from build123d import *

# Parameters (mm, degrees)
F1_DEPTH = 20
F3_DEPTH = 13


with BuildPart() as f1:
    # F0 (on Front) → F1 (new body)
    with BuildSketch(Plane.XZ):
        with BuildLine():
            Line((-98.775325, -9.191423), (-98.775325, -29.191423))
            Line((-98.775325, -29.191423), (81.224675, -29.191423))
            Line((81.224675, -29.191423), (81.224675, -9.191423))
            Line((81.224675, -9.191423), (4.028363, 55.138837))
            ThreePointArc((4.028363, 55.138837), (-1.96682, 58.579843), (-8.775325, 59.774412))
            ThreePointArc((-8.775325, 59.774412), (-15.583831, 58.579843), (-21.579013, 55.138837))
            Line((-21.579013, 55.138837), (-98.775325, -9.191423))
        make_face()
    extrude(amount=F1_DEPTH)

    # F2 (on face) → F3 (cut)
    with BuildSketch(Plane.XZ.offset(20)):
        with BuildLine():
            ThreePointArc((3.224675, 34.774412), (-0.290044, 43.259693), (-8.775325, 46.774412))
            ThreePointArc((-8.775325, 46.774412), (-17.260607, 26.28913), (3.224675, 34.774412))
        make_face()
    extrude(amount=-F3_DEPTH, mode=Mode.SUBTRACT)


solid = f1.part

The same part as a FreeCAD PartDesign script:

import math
import FreeCAD as App
import Part
import Sketcher

V = App.Vector

doc = App.newDocument("Part")
body = doc.addObject("PartDesign::Body", "Body")

# Sketch on XZ plane
sketch1 = body.newObject("Sketcher::SketchObject", "Sketch")
sketch1.AttachmentSupport = (doc.getObject("XZ_Plane"), [""])
sketch1.MapMode = "FlatFace"
sketch1.addGeometry([
    Part.LineSegment(V(-99, -9, 0), V(-99, -29, 0)),  # 0
    Part.LineSegment(V(-99, -29, 0), V(81, -29, 0)),  # 1
    Part.LineSegment(V(81, -29, 0), V(81, -9, 0)),  # 2
    Part.LineSegment(V(81, -9, 0), V(4, 55, 0)),  # 3
    Part.ArcOfCircle(Part.Circle(V(-9, 40, 0), V(0, 0, 1), 20), math.radians(50), math.radians(90)),  # 4
    Part.ArcOfCircle(Part.Circle(V(-9, 40, 0), V(0, 0, 1), 20), math.radians(90), math.radians(130)),  # 5
    Part.LineSegment(V(-22, 55, 0), V(-99, -9, 0)),  # 6
], False)
sketch1.addConstraint([
    Sketcher.Constraint("Coincident", 0, 2, 1, 1),
    Sketcher.Constraint("Coincident", 1, 2, 2, 1),
    Sketcher.Constraint("Coincident", 2, 2, 3, 1),
    Sketcher.Constraint("Tangent", 3, 2, 4, 1),
    Sketcher.Constraint("Tangent", 4, 2, 5, 1),
    Sketcher.Constraint("Tangent", 5, 2, 6, 1),
    Sketcher.Constraint("Coincident", 6, 2, 0, 1),
    Sketcher.Constraint("Vertical", 0),
    Sketcher.Constraint("Horizontal", 1),
    Sketcher.Constraint("Vertical", 2),
    Sketcher.Constraint("Horizontal", 3, 2, 5, 2),
    Sketcher.Constraint("Horizontal", 2, 2, 6, 2),
    Sketcher.Constraint("Vertical", 5, 3, 4, 2),
    Sketcher.Constraint("Equal", 3, 6),
    Sketcher.Constraint("Radius", 5, 20.000001),
    Sketcher.Constraint("DistanceX", 1, 1, 1, 2, 180.0),
    Sketcher.Constraint("DistanceY", 0, 2, 0, 1, 20.0),
    Sketcher.Constraint("Distance", 3, 100.487078),
    Sketcher.Constraint("DistanceY", -1, 1, 5, 3, 39.774411),
    Sketcher.Constraint("DistanceX", 4, 3, -1, 1, 8.775328),
])
pad1 = body.newObject("PartDesign::Pad", "Pad")
pad1.Profile = sketch1
pad1.Length = 20

# Sketch on XZ plane
sketch2 = body.newObject("Sketcher::SketchObject", "Sketch001")
sketch2.AttachmentSupport = (doc.getObject("XZ_Plane"), [""])
sketch2.MapMode = "FlatFace"
sketch2.AttachmentOffset = App.Placement(V(0, 0, 20), App.Rotation())
sketch2.addGeometry([
    Part.ArcOfCircle(Part.Circle(V(-9, 35, 0), V(0, 0, 1), 12), math.radians(0), math.radians(90)),
    Part.ArcOfCircle(Part.Circle(V(-9, 35, 0), V(0, 0, 1), 12), math.radians(90), math.radians(360)),
], False)
sketch2.addConstraint([
    Sketcher.Constraint("Tangent", 0, 1, 1, 2),
    Sketcher.Constraint("Coincident", 1, 1, 0, 2),
    Sketcher.Constraint("Horizontal", 1, 3, 0, 1),
    Sketcher.Constraint("Vertical", 0, 3, 1, 1),
    Sketcher.Constraint("Radius", 0, 12.000001),
    Sketcher.Constraint("DistanceY", -1, 1, 0, 3, 34.774411),
    Sketcher.Constraint("DistanceX", 0, 3, -1, 1, 8.775326),
])
pocket1 = body.newObject("PartDesign::Pocket", "Pocket")
pocket1.Profile = sketch2
pocket1.Length = 13

doc.recompute()
